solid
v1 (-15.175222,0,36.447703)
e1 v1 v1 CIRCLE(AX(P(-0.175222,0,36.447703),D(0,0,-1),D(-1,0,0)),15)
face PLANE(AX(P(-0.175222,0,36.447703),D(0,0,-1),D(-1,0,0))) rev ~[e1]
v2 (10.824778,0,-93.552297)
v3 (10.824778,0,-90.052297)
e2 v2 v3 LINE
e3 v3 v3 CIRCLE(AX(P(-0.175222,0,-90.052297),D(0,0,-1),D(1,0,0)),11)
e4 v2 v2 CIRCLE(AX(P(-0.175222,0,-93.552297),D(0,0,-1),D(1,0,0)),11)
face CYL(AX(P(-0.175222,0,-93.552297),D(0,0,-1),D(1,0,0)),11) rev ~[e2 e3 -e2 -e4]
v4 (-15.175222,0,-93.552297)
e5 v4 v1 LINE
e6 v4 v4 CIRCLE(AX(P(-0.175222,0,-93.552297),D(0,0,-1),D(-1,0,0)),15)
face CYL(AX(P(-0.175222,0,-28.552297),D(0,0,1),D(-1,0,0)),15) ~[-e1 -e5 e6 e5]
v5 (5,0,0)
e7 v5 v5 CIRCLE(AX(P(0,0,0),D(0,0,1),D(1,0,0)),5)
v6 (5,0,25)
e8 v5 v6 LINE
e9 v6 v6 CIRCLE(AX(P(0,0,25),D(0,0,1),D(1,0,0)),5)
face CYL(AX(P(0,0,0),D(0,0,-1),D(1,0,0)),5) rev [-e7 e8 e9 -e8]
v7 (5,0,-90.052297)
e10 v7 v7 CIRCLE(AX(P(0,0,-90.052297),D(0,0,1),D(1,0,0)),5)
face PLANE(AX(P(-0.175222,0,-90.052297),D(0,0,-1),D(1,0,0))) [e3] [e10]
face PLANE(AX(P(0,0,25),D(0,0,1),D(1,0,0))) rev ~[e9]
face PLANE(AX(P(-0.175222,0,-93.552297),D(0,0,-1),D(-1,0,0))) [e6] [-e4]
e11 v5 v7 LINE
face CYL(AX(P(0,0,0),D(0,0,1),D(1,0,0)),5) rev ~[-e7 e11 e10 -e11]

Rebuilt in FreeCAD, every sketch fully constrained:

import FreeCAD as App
import Part
import Sketcher

doc = App.newDocument("Part")
body = doc.addObject("PartDesign::Body", "Body")

# Sketch on XZ plane
sketch1 = body.newObject("Sketcher::SketchObject", "Sketch")
sketch1.AttachmentSupport = (doc.getObject("XZ_Plane"), [""])
sketch1.MapMode = "FlatFace"
sketch1.addGeometry([
    Part.LineSegment(App.Vector(-15.175222, 36.447703, 0), App.Vector(-15.175222, -93.552297, 0)),
    Part.LineSegment(App.Vector(-15.175222, -93.552297, 0), App.Vector(-0.175222, -93.552297, 0)),
    Part.LineSegment(App.Vector(-0.175222, -93.552297, 0), App.Vector(-0.175222, 36.447703, 0)),
    Part.LineSegment(App.Vector(-0.175222, 36.447703, 0), App.Vector(-15.175222, 36.447703, 0)),
], False)
sketch1.addGeometry(Part.LineSegment(App.Vector(-0.175222, 36.447703, 0), App.Vector(-0.175222, -93.552297, 0)), True)  # axis
sketch1.addConstraint([
    Sketcher.Constraint("Coincident", 0, 2, 1, 1),
    Sketcher.Constraint("Coincident", 1, 2, 2, 1),
    Sketcher.Constraint("Coincident", 2, 2, 3, 1),
    Sketcher.Constraint("Coincident", 3, 2, 0, 1),
    Sketcher.Constraint("Vertical", 0),
    Sketcher.Constraint("Horizontal", 1),
    Sketcher.Constraint("Vertical", 2),
    Sketcher.Constraint("Horizontal", 3),
    Sketcher.Constraint("Vertical", 4),
    Sketcher.Constraint("Coincident", 4, 1, 2, 2),
    Sketcher.Constraint("Horizontal", 0, 2, 4, 2),
    Sketcher.Constraint("DistanceX", 1, 1, 1, 2, 15.0),
    Sketcher.Constraint("DistanceY", 0, 2, 0, 1, 130.0),
    Sketcher.Constraint("DistanceX", 0, 2, -1, 1, 15.175222),
    Sketcher.Constraint("DistanceY", 0, 2, -1, 1, 93.552297),
])
revolution = body.newObject("PartDesign::Revolution", "Revolution")
revolution.Profile = sketch1
revolution.ReferenceAxis = (sketch1, ["Axis0"])
revolution.Angle = 360

# Sketch on XY plane
sketch2 = body.newObject("Sketcher::SketchObject", "Sketch001")
sketch2.AttachmentSupport = (doc.getObject("XY_Plane"), [""])
sketch2.MapMode = "FlatFace"
sketch2.addGeometry(Part.Circle(App.Vector(0, 0, 0), App.Vector(0, 0, 1), 5), False)
sketch2.addConstraint([
    Sketcher.Constraint("Coincident", 0, 3, -1, 1),
    Sketcher.Constraint("Diameter", 0, 10.0),
])
pocket1 = body.newObject("PartDesign::Pocket", "Pocket")
pocket1.Profile = sketch2
pocket1.Type = "TwoLengths"
pocket1.Length = 93.553297
pocket1.Length2 = 25

# Sketch on XY plane
sketch3 = body.newObject("Sketcher::SketchObject", "Sketch002")
sketch3.AttachmentSupport = (doc.getObject("XY_Plane"), [""])
sketch3.MapMode = "FlatFace"
sketch3.AttachmentOffset = App.Placement(App.Vector(0, 0, -93.552297), App.Rotation())
sketch3.addGeometry(Part.Circle(App.Vector(-0.175222, 0, 0), App.Vector(0, 0, 1), 11), False)
sketch3.addConstraint([
    Sketcher.Constraint("PointOnObject", 0, 3, -1),
    Sketcher.Constraint("Diameter", 0, 22.0),
    Sketcher.Constraint("DistanceX", 0, 3, -1, 1, 0.175222),
])
pocket2 = body.newObject("PartDesign::Pocket", "Pocket001")
pocket2.Profile = sketch3
pocket2.Length = 3.5
pocket2.Reversed = True

doc.recompute()
